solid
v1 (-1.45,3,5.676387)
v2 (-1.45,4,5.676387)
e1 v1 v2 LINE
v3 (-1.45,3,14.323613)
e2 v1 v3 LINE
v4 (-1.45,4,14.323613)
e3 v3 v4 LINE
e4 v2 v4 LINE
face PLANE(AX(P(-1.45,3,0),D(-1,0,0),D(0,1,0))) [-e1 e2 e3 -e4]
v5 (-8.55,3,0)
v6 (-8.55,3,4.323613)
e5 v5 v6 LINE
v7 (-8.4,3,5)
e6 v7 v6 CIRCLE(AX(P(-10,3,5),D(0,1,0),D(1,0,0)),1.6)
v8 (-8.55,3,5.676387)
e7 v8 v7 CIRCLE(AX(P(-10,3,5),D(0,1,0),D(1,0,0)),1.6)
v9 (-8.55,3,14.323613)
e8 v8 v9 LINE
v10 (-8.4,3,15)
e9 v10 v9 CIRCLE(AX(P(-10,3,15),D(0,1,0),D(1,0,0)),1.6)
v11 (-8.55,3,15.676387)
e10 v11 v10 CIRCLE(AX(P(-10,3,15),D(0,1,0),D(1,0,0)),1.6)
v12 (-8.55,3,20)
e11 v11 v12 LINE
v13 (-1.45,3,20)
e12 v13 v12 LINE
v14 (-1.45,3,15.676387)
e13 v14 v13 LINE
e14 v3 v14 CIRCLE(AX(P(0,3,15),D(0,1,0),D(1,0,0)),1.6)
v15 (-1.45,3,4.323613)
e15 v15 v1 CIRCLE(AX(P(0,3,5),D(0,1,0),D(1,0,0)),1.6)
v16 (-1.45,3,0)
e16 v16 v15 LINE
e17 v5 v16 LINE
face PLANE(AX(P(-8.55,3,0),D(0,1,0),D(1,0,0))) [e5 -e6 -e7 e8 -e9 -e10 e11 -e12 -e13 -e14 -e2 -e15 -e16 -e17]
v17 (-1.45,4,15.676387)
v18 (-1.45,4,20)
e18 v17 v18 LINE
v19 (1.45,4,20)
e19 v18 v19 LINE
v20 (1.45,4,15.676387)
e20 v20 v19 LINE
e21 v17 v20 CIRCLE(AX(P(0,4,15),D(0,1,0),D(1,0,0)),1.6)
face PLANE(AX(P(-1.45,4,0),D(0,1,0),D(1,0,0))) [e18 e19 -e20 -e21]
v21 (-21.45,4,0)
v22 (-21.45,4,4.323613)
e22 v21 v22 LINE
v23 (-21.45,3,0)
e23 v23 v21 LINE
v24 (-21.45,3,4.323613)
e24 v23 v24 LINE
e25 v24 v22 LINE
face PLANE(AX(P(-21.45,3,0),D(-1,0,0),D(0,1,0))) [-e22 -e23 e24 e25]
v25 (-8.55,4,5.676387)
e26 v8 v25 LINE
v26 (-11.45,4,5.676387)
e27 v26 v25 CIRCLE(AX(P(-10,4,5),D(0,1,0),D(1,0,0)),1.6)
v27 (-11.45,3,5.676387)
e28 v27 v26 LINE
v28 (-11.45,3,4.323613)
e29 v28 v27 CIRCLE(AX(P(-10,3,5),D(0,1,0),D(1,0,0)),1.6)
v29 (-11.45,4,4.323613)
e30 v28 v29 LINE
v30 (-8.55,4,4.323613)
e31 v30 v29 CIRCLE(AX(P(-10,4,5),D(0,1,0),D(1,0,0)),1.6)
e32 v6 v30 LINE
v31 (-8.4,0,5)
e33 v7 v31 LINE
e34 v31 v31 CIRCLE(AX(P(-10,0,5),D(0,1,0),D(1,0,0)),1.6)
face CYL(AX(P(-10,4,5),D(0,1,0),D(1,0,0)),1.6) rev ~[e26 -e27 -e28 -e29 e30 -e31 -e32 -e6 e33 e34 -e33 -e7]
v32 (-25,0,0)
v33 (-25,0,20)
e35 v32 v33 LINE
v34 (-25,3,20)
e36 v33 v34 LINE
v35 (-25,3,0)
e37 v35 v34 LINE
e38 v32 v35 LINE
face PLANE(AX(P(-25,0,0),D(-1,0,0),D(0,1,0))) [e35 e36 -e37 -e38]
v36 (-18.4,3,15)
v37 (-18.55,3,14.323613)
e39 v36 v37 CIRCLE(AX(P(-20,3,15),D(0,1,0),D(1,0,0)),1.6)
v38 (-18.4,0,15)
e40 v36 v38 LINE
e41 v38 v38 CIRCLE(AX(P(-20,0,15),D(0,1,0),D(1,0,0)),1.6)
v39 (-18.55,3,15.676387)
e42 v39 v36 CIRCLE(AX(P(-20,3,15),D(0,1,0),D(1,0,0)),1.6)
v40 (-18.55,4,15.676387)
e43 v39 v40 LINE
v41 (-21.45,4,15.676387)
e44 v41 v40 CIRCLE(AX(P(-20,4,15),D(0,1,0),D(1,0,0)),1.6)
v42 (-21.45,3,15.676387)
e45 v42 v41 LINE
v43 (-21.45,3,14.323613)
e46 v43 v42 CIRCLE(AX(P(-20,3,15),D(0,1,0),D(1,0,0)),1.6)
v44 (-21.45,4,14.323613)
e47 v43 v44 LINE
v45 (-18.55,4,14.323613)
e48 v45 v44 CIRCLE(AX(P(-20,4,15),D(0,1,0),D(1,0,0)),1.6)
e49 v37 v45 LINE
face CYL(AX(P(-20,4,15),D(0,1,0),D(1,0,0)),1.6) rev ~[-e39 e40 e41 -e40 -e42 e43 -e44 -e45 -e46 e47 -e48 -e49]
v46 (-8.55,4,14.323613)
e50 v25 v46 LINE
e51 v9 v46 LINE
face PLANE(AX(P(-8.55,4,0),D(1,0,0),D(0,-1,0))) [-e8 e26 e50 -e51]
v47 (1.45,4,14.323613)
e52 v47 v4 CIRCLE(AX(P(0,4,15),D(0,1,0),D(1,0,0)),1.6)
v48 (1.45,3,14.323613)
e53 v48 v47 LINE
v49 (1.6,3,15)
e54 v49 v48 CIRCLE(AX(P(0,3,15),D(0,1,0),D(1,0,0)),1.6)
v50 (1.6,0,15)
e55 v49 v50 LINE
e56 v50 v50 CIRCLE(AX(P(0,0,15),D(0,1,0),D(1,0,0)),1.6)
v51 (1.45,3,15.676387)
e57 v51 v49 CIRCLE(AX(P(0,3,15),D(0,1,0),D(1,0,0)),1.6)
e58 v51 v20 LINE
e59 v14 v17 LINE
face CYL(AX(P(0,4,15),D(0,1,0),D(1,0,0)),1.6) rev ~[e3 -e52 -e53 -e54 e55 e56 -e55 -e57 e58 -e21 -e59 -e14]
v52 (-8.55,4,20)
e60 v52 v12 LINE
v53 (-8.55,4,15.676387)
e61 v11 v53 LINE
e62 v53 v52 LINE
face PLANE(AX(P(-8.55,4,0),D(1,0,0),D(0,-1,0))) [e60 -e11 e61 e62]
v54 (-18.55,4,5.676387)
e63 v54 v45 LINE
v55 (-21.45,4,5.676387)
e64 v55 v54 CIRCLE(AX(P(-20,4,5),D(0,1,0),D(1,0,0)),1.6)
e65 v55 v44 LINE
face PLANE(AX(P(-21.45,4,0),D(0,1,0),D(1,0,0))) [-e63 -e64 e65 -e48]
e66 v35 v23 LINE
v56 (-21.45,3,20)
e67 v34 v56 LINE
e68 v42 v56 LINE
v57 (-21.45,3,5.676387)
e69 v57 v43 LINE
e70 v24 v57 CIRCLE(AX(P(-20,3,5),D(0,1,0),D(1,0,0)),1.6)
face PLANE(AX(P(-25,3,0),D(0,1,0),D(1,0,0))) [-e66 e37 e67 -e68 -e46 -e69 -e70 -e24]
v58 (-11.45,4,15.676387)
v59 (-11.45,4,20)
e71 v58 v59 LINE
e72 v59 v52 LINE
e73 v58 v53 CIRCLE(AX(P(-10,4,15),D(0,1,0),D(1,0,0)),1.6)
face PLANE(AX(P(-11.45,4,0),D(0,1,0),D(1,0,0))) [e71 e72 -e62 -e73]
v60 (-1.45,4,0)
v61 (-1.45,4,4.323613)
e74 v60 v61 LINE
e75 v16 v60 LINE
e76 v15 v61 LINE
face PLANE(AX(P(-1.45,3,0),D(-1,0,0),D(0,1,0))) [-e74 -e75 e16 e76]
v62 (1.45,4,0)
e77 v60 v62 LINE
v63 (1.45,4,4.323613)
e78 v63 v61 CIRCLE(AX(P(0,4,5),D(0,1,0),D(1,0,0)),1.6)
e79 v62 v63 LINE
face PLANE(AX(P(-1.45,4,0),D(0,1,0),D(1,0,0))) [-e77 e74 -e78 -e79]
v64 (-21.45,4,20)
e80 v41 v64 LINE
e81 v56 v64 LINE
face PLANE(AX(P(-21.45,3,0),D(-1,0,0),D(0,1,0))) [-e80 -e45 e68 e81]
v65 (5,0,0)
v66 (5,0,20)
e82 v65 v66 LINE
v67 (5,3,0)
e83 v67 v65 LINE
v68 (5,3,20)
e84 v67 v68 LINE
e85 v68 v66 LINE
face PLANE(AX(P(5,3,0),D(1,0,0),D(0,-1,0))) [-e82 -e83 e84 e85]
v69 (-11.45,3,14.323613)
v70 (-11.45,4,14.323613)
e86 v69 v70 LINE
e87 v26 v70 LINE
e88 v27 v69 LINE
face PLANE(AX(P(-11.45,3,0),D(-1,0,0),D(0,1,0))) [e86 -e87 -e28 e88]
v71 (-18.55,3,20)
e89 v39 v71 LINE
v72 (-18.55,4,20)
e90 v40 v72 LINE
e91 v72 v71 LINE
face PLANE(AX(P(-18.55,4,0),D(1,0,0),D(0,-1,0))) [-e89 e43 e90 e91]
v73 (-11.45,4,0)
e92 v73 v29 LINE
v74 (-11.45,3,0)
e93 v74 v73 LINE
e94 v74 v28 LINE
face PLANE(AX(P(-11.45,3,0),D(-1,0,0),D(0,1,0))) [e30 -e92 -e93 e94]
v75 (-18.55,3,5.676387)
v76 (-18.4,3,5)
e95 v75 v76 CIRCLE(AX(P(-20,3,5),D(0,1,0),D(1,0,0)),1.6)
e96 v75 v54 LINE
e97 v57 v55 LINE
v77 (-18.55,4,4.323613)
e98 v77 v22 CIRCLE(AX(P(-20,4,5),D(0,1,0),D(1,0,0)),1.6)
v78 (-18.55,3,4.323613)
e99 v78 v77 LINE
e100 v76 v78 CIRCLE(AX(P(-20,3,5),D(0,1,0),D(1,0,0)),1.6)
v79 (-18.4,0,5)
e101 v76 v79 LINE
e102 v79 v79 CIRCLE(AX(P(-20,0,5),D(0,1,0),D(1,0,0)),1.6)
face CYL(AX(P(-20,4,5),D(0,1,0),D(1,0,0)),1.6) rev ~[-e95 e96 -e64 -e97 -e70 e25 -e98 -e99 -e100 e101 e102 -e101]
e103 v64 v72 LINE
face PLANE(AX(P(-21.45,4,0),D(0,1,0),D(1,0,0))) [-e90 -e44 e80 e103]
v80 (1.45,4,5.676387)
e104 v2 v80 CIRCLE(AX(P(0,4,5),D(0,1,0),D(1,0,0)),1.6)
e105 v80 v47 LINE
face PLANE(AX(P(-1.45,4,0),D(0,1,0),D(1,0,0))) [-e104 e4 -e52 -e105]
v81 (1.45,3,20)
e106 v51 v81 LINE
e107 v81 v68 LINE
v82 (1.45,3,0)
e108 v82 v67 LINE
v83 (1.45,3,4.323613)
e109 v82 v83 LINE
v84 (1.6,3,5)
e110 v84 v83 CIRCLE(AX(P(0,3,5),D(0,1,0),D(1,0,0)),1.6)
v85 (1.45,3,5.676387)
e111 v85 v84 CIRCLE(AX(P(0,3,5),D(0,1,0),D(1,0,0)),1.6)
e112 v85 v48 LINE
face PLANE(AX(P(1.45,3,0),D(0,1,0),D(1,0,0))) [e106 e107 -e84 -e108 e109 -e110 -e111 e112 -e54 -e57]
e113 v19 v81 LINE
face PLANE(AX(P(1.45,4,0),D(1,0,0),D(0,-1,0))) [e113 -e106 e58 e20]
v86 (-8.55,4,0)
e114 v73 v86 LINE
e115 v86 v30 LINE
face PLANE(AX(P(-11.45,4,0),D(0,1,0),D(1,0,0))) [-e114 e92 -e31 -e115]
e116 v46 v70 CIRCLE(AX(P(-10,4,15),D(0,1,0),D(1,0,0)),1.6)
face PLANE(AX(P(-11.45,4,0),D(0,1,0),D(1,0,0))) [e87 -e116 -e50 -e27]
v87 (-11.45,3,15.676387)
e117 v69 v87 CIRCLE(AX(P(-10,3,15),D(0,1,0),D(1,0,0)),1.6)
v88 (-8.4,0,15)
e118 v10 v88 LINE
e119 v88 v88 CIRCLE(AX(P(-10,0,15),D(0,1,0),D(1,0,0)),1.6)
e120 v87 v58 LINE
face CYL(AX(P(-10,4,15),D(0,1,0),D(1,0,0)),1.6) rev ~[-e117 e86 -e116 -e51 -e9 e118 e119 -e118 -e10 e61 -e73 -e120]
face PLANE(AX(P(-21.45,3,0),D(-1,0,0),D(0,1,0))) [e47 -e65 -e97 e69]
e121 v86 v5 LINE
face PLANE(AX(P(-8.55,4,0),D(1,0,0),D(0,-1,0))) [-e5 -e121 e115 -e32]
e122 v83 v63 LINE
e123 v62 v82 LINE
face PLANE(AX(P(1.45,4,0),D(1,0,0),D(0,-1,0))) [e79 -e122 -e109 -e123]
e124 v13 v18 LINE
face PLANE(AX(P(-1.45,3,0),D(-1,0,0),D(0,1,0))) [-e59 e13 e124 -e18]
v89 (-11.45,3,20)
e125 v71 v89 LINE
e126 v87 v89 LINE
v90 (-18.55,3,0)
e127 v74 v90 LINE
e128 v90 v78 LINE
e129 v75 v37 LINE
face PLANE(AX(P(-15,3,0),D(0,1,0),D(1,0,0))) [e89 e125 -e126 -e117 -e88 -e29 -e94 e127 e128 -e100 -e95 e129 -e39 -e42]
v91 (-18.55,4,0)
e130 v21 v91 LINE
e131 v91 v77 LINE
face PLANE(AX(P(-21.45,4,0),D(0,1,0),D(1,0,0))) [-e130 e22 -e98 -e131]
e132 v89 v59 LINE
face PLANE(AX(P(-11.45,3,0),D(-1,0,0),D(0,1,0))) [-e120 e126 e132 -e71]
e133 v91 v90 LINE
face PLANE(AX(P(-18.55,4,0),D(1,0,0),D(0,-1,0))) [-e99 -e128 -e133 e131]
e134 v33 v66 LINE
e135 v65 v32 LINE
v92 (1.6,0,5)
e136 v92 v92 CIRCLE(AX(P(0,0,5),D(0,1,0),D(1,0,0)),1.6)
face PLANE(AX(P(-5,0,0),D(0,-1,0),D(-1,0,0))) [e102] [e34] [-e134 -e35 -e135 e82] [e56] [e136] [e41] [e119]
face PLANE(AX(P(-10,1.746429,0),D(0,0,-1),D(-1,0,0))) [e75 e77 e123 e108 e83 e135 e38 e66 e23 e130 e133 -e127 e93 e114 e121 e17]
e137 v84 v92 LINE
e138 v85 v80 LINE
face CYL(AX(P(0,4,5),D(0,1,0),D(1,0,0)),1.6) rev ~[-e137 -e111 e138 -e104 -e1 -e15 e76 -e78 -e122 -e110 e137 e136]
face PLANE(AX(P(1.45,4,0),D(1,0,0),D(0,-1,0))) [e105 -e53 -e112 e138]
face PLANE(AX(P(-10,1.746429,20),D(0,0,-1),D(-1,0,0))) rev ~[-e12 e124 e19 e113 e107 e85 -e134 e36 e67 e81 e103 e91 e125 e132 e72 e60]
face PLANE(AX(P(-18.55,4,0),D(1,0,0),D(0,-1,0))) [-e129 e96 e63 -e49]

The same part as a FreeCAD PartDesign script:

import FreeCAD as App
import Part
import Sketcher

V = App.Vector

doc = App.newDocument("Part")
body = doc.addObject("PartDesign::Body", "Body")

# Sketch on XY plane
sketch1 = body.newObject("Sketcher::SketchObject", "Sketch")
sketch1.AttachmentSupport = (doc.getObject("XY_Plane"), [""])
sketch1.MapMode = "FlatFace"
sketch1.addGeometry(Part.LineSegment(V(-5, 3, 0), V(-5, 0, 0)), False)
sketch1.addGeometry(Part.LineSegment(V(-5, 0, 0), V(5, 0, 0)), False)
sketch1.addGeometry(Part.LineSegment(V(5, 0, 0), V(5, 3, 0)), False)
sketch1.addGeometry(Part.LineSegment(V(5, 3, 0), V(1.4, 3, 0)), False)
sketch1.addGeometry(Part.LineSegment(V(1.4, 3, 0), V(1.4, 4, 0)), False)
sketch1.addGeometry(Part.LineSegment(V(1.4, 4, 0), V(-1.4, 4, 0)), False)
sketch1.addGeometry(Part.LineSegment(V(-1.4, 4, 0), V(-1.4, 3, 0)), False)
sketch1.addGeometry(Part.LineSegment(V(-1.4, 3, 0), V(-5, 3, 0)), False)
sketch1.addConstraint(Sketcher.Constraint("Coincident", 0, 2, 1, 1))
sketch1.addConstraint(Sketcher.Constraint("Coincident", 1, 2, 2, 1))
sketch1.addConstraint(Sketcher.Constraint("Coincident", 2, 2, 3, 1))
sketch1.addConstraint(Sketcher.Constraint("Coincident", 3, 2, 4, 1))
sketch1.addConstraint(Sketcher.Constraint("Coincident", 4, 2, 5, 1))
sketch1.addConstraint(Sketcher.Constraint("Coincident", 5, 2, 6, 1))
sketch1.addConstraint(Sketcher.Constraint("Coincident", 6, 2, 7, 1))
sketch1.addConstraint(Sketcher.Constraint("Coincident", 7, 2, 0, 1))
sketch1.addConstraint(Sketcher.Constraint("Vertical", 0))
sketch1.addConstraint(Sketcher.Constraint("Horizontal", 1))
sketch1.addConstraint(Sketcher.Constraint("Vertical", 2))
sketch1.addConstraint(Sketcher.Constraint("Horizontal", 3))
sketch1.addConstraint(Sketcher.Constraint("Vertical", 4))
sketch1.addConstraint(Sketcher.Constraint("Horizontal", 5))
sketch1.addConstraint(Sketcher.Constraint("Vertical", 6))
sketch1.addConstraint(Sketcher.Constraint("Horizontal", 7))
sketch1.addConstraint(Sketcher.Constraint("Symmetric", 0, 2, 1, 2, -1, 1))
sketch1.addConstraint(Sketcher.Constraint("Symmetric", 3, 2, 6, 2, -2))
sketch1.addConstraint(Sketcher.Constraint("DistanceX", 1, 1, 1, 2, 10.0))
sketch1.addConstraint(Sketcher.Constraint("DistanceY", 0, 2, 0, 1, 3.0))
sketch1.addConstraint(Sketcher.Constraint("DistanceY", 4, 1, 4, 2, 1.0))
sketch1.addConstraint(Sketcher.Constraint("DistanceX", 5, 2, 5, 1, 2.9))
pad1 = body.newObject("PartDesign::Pad", "Pad")
pad1.Profile = sketch1
pad1.Length = 20

# Sketch on XZ plane
sketch2 = body.newObject("Sketcher::SketchObject", "Sketch001")
sketch2.AttachmentSupport = (doc.getObject("XZ_Plane"), [""])
sketch2.MapMode = "FlatFace"
sketch2.AttachmentOffset = App.Placement(V(0, 0, -4), App.Rotation())
sketch2.addGeometry(Part.Circle(V(0, 5, 0), V(0, 0, 1), 1.6), False)
sketch2.addGeometry(Part.Circle(V(0, 15, 0), V(0, 0, 1), 1.6), False)
sketch2.addConstraint(Sketcher.Constraint("Equal", 0, 1))
sketch2.addConstraint(Sketcher.Constraint("PointOnObject", 0, 3, -2))
sketch2.addConstraint(Sketcher.Constraint("PointOnObject", 1, 3, -2))
sketch2.addConstraint(Sketcher.Constraint("Diameter", 0, 3.2))
sketch2.addConstraint(Sketcher.Constraint("DistanceY", -1, 1, 0, 3, 5.0))
sketch2.addConstraint(Sketcher.Constraint("DistanceY", -1, 1, 1, 3, 15.0))
pocket1 = body.newObject("PartDesign::Pocket", "Pocket")
pocket1.Profile = sketch2
pocket1.Type = "ThroughAll"
pocket1.Reversed = True
doc.recompute()

linearpattern = body.newObject("PartDesign::LinearPattern", "LinearPattern")
linearpattern.Originals = [pad1, pocket1]
linearpattern.Direction = (doc.getObject("X_Axis"), [""])
linearpattern.Mode = "offset"
linearpattern.Offset = 10
linearpattern.Occurrences = 3
linearpattern.Reversed = True
body.Tip = linearpattern

doc.recompute()
